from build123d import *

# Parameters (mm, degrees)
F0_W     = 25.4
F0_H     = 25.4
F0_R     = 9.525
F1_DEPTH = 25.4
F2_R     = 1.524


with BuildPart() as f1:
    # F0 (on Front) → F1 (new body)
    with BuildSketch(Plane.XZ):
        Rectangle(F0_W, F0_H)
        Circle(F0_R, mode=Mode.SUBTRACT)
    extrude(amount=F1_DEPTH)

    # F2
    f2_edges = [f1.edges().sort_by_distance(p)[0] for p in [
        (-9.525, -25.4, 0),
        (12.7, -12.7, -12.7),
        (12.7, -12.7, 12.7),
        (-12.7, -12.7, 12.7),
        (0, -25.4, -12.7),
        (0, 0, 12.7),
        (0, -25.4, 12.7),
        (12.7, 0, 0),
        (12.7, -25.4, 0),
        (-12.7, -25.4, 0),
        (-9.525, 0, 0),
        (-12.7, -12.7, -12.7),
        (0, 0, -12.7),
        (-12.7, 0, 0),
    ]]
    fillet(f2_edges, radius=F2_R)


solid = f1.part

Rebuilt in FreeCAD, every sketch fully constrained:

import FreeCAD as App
import Part
import Sketcher
Q = App.Units.Quantity

doc = App.newDocument("Part")
params = doc.addObject("Spreadsheet::Sheet", "Params")
for row, (alias, value) in enumerate([
    ("sketch1_diameter", "0.75 in"),
    ("sketch1_width", "1 in"),
    ("pad1_length", "1 in"),
    ("fillet_radius", "0.06 in"),
], start=1):
    params.set(f"A{row}", alias)
    params.set(f"B{row}", "=" + value)
    params.setAlias(f"B{row}", alias)

body = doc.addObject("PartDesign::Body", "Body")

sketch1 = body.newObject("Sketcher::SketchObject", "Sketch")
sketch1.AttachmentSupport = (doc.getObject("XZ_Plane"), [""])
sketch1.MapMode = "FlatFace"
sketch1.addGeometry([
    Part.LineSegment(App.Vector(-12.7, 12.7, 0), App.Vector(-12.7, -12.7, 0)),
    Part.LineSegment(App.Vector(-12.7, -12.7, 0), App.Vector(12.7, -12.7, 0)),
    Part.LineSegment(App.Vector(12.7, -12.7, 0), App.Vector(12.7, 12.7, 0)),
    Part.LineSegment(App.Vector(12.7, 12.7, 0), App.Vector(-12.7, 12.7, 0)),
    Part.Circle(App.Vector(0, 0, 0), App.Vector(0, 0, 1), 9.525),
], False)
sketch1.addConstraint([
    Sketcher.Constraint("Coincident", 0, 2, 1, 1),
    Sketcher.Constraint("Coincident", 1, 2, 2, 1),
    Sketcher.Constraint("Coincident", 2, 2, 3, 1),
    Sketcher.Constraint("Coincident", 3, 2, 0, 1),
    Sketcher.Constraint("Vertical", 0),
    Sketcher.Constraint("Horizontal", 1),
    Sketcher.Constraint("Vertical", 2),
    Sketcher.Constraint("Horizontal", 3),
    Sketcher.Constraint("Coincident", 4, 3, -1, 1),
    Sketcher.Constraint("Symmetric", 0, 2, 2, 2, -1, 1),
    Sketcher.Constraint("Equal", 3, 0),
    Sketcher.Constraint("Diameter", 4, Q("0.75 in")),
    Sketcher.Constraint("DistanceX", 1, 1, 1, 2, Q("1 in")),
])
sketch1.setExpression("Constraints[11]", "Params.sketch1_diameter")
sketch1.setExpression("Constraints[12]", "Params.sketch1_width")
pad1 = body.newObject("PartDesign::Pad", "Pad")
pad1.Profile = sketch1
pad1.setExpression("Length", "Params.pad1_length")
doc.recompute()

fillet = body.newObject("PartDesign::Fillet", "Fillet")
fillet.Base = (pad1, ["Edge1"])
fillet.UseAllEdges = True
fillet.setExpression("Radius", "Params.fillet_radius")

doc.recompute()
